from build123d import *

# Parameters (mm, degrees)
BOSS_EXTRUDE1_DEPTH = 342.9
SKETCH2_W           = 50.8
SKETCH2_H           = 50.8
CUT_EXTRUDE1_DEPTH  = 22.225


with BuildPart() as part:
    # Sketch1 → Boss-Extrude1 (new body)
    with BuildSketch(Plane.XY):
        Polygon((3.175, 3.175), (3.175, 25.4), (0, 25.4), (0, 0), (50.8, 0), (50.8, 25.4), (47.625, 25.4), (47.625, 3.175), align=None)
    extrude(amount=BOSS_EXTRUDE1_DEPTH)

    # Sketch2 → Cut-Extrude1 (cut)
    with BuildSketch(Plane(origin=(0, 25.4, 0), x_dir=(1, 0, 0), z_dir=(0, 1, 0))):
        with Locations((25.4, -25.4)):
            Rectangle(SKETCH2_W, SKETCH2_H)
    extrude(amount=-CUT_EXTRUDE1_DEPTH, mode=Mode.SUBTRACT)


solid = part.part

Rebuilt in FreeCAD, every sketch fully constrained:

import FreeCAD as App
import Part
import Sketcher
from FreeCAD import Vector
Q = App.Units.Quantity


def add_polygon(sketch, points):
    """Adds a closed chain of lines whose ends are joined by coincident constraints."""
    first, n = sketch.GeometryCount, len(points)
    for a, b in zip(points, points[1:] + points[:1]):
        sketch.addGeometry(Part.LineSegment(App.Vector(*a, 0), App.Vector(*b, 0)), False)
    for i in range(n):
        sketch.addConstraint(Sketcher.Constraint("Coincident", first + i, 2, first + (i + 1) % n, 1))

doc = App.newDocument("Part")
body = doc.addObject("PartDesign::Body", "Body")

# Sketch on XY plane
sketch1 = body.newObject("Sketcher::SketchObject", "Sketch")
sketch1.AttachmentSupport = (doc.getObject("XY_Plane"), [""])
sketch1.MapMode = "FlatFace"
add_polygon(sketch1, [(3.2, 3.2), (3.2, 25.4), (0, 25.4), (0, 0), (50.8, 0), (50.8, 25.4), (47.6, 25.4), (47.6, 3.2)])  # lines 0-7
sketch1.addConstraint([
    Sketcher.Constraint("Vertical", 0),
    Sketcher.Constraint("Horizontal", 1),
    Sketcher.Constraint("Vertical", 2),
    Sketcher.Constraint("Horizontal", 3),
    Sketcher.Constraint("Vertical", 4),
    Sketcher.Constraint("Horizontal", 5),
    Sketcher.Constraint("Vertical", 6),
    Sketcher.Constraint("Horizontal", 7),
    Sketcher.Constraint("Coincident", 2, 2, -1, 1),
    Sketcher.Constraint("Horizontal", 1, 2, 4, 2),
    Sketcher.Constraint("Equal", 1, 5),
    Sketcher.Constraint("DistanceX", 3, 1, 3, 2, Q("2 in")),
    Sketcher.Constraint("DistanceY", 2, 2, 2, 1, Q("1 in")),
    Sketcher.Constraint("DistanceX", 7, 2, 7, 1, Q("1.75 in")),
    Sketcher.Constraint("DistanceY", 0, 1, 0, 2, Q("0.875 in")),
])
pad1 = body.newObject("PartDesign::Pad", "Pad")
pad1.Profile = sketch1
pad1.Length = Q("13.5 in")

# Sketch on XZ plane
sketch2 = body.newObject("Sketcher::SketchObject", "Sketch001")
sketch2.AttachmentSupport = (doc.getObject("XZ_Plane"), [""])
sketch2.MapMode = "FlatFace"
sketch2.AttachmentOffset = App.Placement(Vector(0, 0, -1 * 25.4), App.Rotation())
add_polygon(sketch2, [(0, 0), (0, 51), (51, 51), (51, 0)])  # lines 0-3
sketch2.addConstraint([
    Sketcher.Constraint("Vertical", 0),
    Sketcher.Constraint("Horizontal", 1),
    Sketcher.Constraint("Vertical", 2),
    Sketcher.Constraint("Horizontal", 3),
    Sketcher.Constraint("Coincident", 3, 2, -1, 1),
    Sketcher.Constraint("Equal", 3, 0),
    Sketcher.Constraint("DistanceX", 1, 1, 1, 2, Q("2 in")),
])
pocket1 = body.newObject("PartDesign::Pocket", "Pocket")
pocket1.Profile = sketch2
pocket1.Length = Q("0.875 in")
pocket1.Reversed = True

doc.recompute()
